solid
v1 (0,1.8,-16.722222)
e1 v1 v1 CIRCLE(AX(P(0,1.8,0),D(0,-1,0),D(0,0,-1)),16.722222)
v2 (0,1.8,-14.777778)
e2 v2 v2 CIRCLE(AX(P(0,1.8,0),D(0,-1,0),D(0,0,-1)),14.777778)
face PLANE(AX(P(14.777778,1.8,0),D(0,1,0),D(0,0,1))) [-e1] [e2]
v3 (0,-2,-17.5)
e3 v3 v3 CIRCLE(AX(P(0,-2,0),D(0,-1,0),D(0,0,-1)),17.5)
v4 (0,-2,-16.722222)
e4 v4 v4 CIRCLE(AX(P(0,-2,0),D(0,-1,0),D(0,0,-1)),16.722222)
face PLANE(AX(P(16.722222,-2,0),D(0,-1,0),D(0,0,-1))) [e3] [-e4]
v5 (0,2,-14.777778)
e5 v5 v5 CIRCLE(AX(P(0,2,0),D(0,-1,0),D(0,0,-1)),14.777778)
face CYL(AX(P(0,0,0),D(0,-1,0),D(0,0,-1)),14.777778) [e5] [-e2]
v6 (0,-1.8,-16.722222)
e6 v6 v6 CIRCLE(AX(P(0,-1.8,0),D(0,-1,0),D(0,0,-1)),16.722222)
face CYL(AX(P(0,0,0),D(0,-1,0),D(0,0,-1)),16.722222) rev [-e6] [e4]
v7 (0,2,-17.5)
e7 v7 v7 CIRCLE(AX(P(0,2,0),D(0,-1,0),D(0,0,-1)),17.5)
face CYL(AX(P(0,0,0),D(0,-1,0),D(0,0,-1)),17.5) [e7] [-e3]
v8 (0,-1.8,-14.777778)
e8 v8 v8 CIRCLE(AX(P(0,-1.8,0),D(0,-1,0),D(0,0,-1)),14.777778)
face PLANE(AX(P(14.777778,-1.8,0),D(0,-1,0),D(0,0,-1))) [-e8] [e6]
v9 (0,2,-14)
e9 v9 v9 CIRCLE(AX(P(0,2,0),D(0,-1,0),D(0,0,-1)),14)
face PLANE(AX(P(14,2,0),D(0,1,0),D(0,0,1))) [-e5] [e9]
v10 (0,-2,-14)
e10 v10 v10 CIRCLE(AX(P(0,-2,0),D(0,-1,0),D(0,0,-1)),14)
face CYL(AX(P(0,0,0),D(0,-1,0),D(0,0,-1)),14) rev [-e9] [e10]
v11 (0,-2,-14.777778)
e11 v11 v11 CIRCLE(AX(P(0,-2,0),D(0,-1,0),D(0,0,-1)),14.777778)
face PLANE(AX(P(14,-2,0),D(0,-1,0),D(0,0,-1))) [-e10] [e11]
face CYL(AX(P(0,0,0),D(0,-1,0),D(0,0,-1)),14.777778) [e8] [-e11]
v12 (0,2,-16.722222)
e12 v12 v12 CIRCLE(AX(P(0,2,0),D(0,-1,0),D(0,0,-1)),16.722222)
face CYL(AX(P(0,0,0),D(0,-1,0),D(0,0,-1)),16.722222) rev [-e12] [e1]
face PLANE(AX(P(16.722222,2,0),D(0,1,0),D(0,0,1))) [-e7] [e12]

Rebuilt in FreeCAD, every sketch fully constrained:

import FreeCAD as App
import Part
import Sketcher

V = App.Vector


def add_polygon(sketch, points):
    """Adds a closed chain of lines whose ends are joined by coincident constraints."""
    first, n = sketch.GeometryCount, len(points)
    for a, b in zip(points, points[1:] + points[:1]):
        sketch.addGeometry(Part.LineSegment(App.Vector(*a, 0), App.Vector(*b, 0)), False)
    for i in range(n):
        sketch.addConstraint(Sketcher.Constraint("Coincident", first + i, 2, first + (i + 1) % n, 1))

doc = App.newDocument("Part")
body = doc.addObject("PartDesign::Body", "Body")

# Sketch on XY plane
sketch1 = doc.addObject("Sketcher::SketchObject", "Sketch")
body.addObject(sketch1)
sketch1.AttachmentSupport = (doc.XY_Plane, [""])
sketch1.MapMode = "FlatFace"
add_polygon(sketch1, [(14, 2), (14, -2), (14.78, -2), (14.78, -1.8), (16.72, -1.8), (16.72, -2), (17.5, -2), (17.5, 2), (16.72, 2), (16.72, 1.8), (14.78, 1.8), (14.78, 2)])  # lines 0-11
sketch1.addConstraint(Sketcher.Constraint("Vertical", 0))
sketch1.addConstraint(Sketcher.Constraint("Horizontal", 1))
sketch1.addConstraint(Sketcher.Constraint("Vertical", 2))
sketch1.addConstraint(Sketcher.Constraint("Horizontal", 3))
sketch1.addConstraint(Sketcher.Constraint("Vertical", 4))
sketch1.addConstraint(Sketcher.Constraint("Horizontal", 5))
sketch1.addConstraint(Sketcher.Constraint("Vertical", 6))
sketch1.addConstraint(Sketcher.Constraint("Horizontal", 7))
sketch1.addConstraint(Sketcher.Constraint("Vertical", 8))
sketch1.addConstraint(Sketcher.Constraint("Horizontal", 9))
sketch1.addConstraint(Sketcher.Constraint("Vertical", 10))
sketch1.addConstraint(Sketcher.Constraint("Horizontal", 11))
sketch1.addConstraint(Sketcher.Constraint("Symmetric", 4, 2, 7, 2, -1))
sketch1.addConstraint(Sketcher.Constraint("Symmetric", 2, 2, 9, 2, -1))
sketch1.addConstraint(Sketcher.Constraint("Horizontal", 1, 2, 4, 2))
sketch1.addConstraint(Sketcher.Constraint("Horizontal", 7, 2, 10, 2))
sketch1.addConstraint(Sketcher.Constraint("Equal", 1, 5))
sketch1.addConstraint(Sketcher.Constraint("DistanceY", 0, 2, 0, 1, 4.0))
sketch1.addConstraint(Sketcher.Constraint("DistanceY", 2, 1, 2, 2, 0.2))
sketch1.addConstraint(Sketcher.Constraint("DistanceX", -1, 1, 0, 2, 14.0))
sketch1.addConstraint(Sketcher.Constraint("DistanceX", -1, 1, 5, 2, 17.5))
sketch1.addConstraint(Sketcher.Constraint("DistanceX", 1, 1, 1, 2, 0.777778))
revolution = doc.addObject("PartDesign::Revolution", "Revolution")
body.addObject(revolution)
revolution.Profile = sketch1
revolution.ReferenceAxis = (sketch1, ["V_Axis"])
revolution.Angle = 360

doc.recompute()
